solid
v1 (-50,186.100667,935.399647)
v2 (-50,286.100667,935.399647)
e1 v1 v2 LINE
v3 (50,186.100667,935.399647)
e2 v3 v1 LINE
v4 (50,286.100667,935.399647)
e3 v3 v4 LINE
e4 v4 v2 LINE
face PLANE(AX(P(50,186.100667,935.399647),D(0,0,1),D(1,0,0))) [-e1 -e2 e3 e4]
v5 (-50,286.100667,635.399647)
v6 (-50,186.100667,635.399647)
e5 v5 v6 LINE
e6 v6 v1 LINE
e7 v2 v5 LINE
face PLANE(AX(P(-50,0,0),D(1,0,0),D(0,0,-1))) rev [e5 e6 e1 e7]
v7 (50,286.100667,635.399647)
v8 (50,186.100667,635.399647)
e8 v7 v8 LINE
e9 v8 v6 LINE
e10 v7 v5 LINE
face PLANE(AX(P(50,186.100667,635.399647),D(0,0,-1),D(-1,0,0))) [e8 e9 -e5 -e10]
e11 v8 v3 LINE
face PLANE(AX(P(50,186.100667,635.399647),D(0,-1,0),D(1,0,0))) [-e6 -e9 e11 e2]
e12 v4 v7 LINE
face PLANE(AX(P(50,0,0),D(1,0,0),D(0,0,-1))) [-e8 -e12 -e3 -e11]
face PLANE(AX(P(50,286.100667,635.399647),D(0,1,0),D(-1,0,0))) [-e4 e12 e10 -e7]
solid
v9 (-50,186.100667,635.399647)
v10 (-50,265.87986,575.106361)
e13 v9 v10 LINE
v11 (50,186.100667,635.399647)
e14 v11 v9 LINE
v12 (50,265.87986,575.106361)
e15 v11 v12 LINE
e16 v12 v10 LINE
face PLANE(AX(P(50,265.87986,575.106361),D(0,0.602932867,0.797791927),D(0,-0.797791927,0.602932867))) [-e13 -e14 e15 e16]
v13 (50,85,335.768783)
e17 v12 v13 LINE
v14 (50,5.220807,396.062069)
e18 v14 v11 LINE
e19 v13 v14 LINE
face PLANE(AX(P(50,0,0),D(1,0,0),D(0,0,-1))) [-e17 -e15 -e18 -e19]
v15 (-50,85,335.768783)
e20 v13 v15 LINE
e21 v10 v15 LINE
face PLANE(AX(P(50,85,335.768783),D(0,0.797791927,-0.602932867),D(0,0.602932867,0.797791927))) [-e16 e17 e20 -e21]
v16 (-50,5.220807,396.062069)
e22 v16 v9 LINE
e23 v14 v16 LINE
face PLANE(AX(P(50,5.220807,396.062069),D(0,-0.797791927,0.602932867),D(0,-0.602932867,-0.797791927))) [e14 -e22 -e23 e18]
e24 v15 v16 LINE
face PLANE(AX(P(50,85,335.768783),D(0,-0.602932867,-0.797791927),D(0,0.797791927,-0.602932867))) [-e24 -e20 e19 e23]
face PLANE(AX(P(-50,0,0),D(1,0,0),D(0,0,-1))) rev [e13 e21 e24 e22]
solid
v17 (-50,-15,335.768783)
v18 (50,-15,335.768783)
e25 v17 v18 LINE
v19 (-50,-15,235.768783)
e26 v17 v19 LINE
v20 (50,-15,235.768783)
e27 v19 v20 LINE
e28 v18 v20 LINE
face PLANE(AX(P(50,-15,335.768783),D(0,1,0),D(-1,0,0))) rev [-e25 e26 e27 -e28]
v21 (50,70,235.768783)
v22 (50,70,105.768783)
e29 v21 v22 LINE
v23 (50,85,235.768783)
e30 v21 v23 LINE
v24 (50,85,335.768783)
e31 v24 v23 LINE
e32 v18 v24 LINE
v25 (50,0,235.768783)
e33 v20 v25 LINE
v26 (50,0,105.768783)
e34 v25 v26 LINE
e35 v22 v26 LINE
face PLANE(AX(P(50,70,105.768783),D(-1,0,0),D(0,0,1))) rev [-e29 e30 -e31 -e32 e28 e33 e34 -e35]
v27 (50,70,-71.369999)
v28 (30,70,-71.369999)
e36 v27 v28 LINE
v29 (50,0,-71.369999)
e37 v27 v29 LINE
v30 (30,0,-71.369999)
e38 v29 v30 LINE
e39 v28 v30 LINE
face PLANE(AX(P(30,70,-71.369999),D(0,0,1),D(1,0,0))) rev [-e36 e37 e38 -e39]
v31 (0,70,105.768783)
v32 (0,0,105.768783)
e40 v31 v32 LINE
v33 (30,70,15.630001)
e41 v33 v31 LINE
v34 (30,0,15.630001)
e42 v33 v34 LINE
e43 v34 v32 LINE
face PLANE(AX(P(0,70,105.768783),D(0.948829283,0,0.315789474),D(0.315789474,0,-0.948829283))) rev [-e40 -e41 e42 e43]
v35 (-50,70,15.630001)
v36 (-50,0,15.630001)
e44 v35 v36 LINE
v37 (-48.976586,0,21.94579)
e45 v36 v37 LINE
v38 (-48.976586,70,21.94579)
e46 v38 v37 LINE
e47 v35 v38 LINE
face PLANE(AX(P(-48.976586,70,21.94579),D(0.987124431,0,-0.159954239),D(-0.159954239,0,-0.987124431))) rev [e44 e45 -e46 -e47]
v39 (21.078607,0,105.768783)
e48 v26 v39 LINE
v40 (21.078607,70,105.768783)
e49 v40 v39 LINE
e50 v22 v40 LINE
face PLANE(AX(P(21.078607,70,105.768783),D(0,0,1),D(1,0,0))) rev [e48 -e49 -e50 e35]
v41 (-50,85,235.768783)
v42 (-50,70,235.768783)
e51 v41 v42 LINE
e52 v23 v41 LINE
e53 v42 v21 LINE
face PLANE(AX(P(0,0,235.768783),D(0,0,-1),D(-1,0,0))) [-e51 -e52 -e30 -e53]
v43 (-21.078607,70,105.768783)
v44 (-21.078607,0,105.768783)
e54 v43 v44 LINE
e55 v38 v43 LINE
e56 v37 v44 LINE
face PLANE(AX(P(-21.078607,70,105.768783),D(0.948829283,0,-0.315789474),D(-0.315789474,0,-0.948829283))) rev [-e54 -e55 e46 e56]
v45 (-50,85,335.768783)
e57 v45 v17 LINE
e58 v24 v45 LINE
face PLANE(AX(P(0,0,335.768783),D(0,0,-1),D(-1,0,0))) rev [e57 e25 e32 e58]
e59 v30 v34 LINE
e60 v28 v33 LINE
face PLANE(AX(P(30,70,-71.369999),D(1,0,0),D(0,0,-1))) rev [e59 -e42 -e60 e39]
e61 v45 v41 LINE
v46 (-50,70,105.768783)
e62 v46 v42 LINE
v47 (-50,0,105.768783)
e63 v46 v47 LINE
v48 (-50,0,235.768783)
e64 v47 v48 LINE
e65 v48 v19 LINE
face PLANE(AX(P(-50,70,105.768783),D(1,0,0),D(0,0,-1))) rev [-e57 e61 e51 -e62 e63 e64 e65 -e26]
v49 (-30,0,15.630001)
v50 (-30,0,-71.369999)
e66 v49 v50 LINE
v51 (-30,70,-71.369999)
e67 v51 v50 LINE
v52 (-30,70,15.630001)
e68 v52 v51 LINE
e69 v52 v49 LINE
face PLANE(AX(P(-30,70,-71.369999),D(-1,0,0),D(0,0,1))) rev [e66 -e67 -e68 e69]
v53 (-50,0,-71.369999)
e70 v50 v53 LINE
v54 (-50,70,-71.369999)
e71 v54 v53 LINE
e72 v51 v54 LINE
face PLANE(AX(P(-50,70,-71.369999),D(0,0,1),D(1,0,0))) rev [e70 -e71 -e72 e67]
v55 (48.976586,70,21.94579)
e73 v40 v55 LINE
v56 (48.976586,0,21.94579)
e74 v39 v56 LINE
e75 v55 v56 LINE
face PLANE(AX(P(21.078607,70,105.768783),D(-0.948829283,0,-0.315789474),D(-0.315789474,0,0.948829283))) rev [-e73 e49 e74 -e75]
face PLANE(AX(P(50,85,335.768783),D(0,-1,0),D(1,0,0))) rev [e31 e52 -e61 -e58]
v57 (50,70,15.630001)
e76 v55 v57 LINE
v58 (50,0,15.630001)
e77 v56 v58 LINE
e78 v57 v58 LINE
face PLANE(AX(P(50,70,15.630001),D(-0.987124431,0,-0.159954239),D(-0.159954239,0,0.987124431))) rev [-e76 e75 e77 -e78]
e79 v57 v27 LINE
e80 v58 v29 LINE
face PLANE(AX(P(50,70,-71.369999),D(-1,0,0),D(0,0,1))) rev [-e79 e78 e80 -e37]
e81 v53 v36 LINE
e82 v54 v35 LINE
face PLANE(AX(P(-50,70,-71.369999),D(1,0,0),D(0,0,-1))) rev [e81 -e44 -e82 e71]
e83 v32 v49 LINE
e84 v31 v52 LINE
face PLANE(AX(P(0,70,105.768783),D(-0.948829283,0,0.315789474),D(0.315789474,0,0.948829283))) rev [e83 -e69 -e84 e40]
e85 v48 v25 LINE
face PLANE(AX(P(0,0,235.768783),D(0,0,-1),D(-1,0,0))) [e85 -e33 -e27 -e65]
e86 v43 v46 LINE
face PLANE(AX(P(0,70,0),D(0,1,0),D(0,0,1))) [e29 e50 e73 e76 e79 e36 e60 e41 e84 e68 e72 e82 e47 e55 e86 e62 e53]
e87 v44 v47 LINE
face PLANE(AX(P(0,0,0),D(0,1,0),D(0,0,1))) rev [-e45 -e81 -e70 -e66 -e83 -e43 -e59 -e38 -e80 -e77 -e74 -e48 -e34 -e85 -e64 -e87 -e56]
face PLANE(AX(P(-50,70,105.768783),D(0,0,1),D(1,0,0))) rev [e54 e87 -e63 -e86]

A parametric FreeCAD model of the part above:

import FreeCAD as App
import Part
import Sketcher

V = App.Vector
Q = App.Units.Quantity


def add_polygon(sketch, points):
    """Adds a closed chain of lines whose ends are joined by coincident constraints."""
    first, n = sketch.GeometryCount, len(points)
    for a, b in zip(points, points[1:] + points[:1]):
        sketch.addGeometry(Part.LineSegment(App.Vector(*a, 0), App.Vector(*b, 0)), False)
    for i in range(n):
        sketch.addConstraint(Sketcher.Constraint("Coincident", first + i, 2, first + (i + 1) % n, 1))

doc = App.newDocument("Part")
body = doc.addObject("PartDesign::Body", "Body")

# Sketch on XZ plane
sketch1 = doc.addObject("Sketcher::SketchObject", "Sketch")
body.addObject(sketch1)
sketch1.AttachmentSupport = (doc.XZ_Plane, [""])
sketch1.MapMode = "FlatFace"
add_polygon(sketch1, [(0, 105.768783), (-30, 15.630001), (-30, -71.369999), (-50, -71.369999), (-50, 15.630001), (-48.976586, 21.94579), (-21.078607, 105.768783), (-50, 105.768783), (-50, 235.768783), (50, 235.768783), (50, 105.768783), (21.078607, 105.768783), (48.976586, 21.94579), (50, 15.630001), (50, -71.369999), (30, -71.369999), (30, 15.630001)])  # lines 0-16
sketch1.addConstraint(Sketcher.Constraint("Vertical", 1))
sketch1.addConstraint(Sketcher.Constraint("Horizontal", 2))
sketch1.addConstraint(Sketcher.Constraint("Vertical", 3))
sketch1.addConstraint(Sketcher.Constraint("Horizontal", 6))
sketch1.addConstraint(Sketcher.Constraint("Vertical", 7))
sketch1.addConstraint(Sketcher.Constraint("Horizontal", 8))
sketch1.addConstraint(Sketcher.Constraint("Vertical", 9))
sketch1.addConstraint(Sketcher.Constraint("Horizontal", 10))
sketch1.addConstraint(Sketcher.Constraint("Vertical", 13))
sketch1.addConstraint(Sketcher.Constraint("Horizontal", 14))
sketch1.addConstraint(Sketcher.Constraint("Vertical", 15))
sketch1.addConstraint(Sketcher.Constraint("Symmetric", 6, 2, 9, 2, -2))
sketch1.addConstraint(Sketcher.Constraint("Symmetric", 4, 2, 11, 2, -2))
sketch1.addConstraint(Sketcher.Constraint("Symmetric", 3, 2, 12, 2, -2))
sketch1.addConstraint(Sketcher.Constraint("Symmetric", 1, 2, 14, 2, -2))
sketch1.addConstraint(Sketcher.Constraint("PointOnObject", 16, 2, -2))
sketch1.addConstraint(Sketcher.Constraint("Parallel", 0, 5))
sketch1.addConstraint(Sketcher.Constraint("Parallel", 11, 16))
sketch1.addConstraint(Sketcher.Constraint("Horizontal", 0, 2, 3, 2))
sketch1.addConstraint(Sketcher.Constraint("Horizontal", 12, 2, 15, 2))
sketch1.addConstraint(Sketcher.Constraint("Horizontal", 10, 2, 16, 2))
sketch1.addConstraint(Sketcher.Constraint("Vertical", 3, 2, 6, 2))
sketch1.addConstraint(Sketcher.Constraint("DistanceX", 2, 2, 2, 1, Q("20 mm")))
sketch1.addConstraint(Sketcher.Constraint("DistanceX", 8, 1, 8, 2, Q("100 mm")))
sketch1.addConstraint(Sketcher.Constraint("DistanceY", 1, 2, 1, 1, Q("87 mm")))
sketch1.addConstraint(Sketcher.Constraint("DistanceY", 7, 1, 7, 2, Q("130 mm")))
sketch1.addConstraint(Sketcher.Constraint("Distance", 0, Q("95 mm")))
sketch1.addConstraint(Sketcher.Constraint("DistanceY", -1, 1, 0, 2, Q("15.630001 mm")))
sketch1.addConstraint(Sketcher.Constraint("Distance", 4, Q("6.39817 mm")))
sketch1.addConstraint(Sketcher.Constraint("DistanceX", 6, 2, 6, 1, Q("28.921393 mm")))
pad1 = doc.addObject("PartDesign::Pad", "Pad")
body.addObject(pad1)
pad1.Profile = sketch1
pad1.Length = 70
pad1.Reversed = True

# Sketch on XY plane
sketch2 = doc.addObject("Sketcher::SketchObject", "Sketch001")
body.addObject(sketch2)
sketch2.AttachmentSupport = (doc.XY_Plane, [""])
sketch2.MapMode = "FlatFace"
sketch2.AttachmentOffset = App.Placement(V(0, 0, 235.768783), App.Rotation())
add_polygon(sketch2, [(-50, 85), (-50, -15), (50, -15), (50, 85)])  # lines 0-3
sketch2.addConstraint(Sketcher.Constraint("Vertical", 0))
sketch2.addConstraint(Sketcher.Constraint("Horizontal", 1))
sketch2.addConstraint(Sketcher.Constraint("Vertical", 2))
sketch2.addConstraint(Sketcher.Constraint("Horizontal", 3))
sketch2.addConstraint(Sketcher.Constraint("Equal", 3, 0))
sketch2.addConstraint(Sketcher.Constraint("DistanceX", 1, 1, 1, 2, Q("100 mm")))
sketch2.addConstraint(Sketcher.Constraint("DistanceX", 0, 2, -1, 1, Q("50 mm")))
sketch2.addConstraint(Sketcher.Constraint("DistanceY", 0, 2, -1, 1, Q("15 mm")))
pad2 = doc.addObject("PartDesign::Pad", "Pad001")
body.addObject(pad2)
pad2.Profile = sketch2
pad2.Length = 100
body2 = doc.addObject("PartDesign::Body", "Body001")

# Sketch on YZ plane
sketch3 = doc.addObject("Sketcher::SketchObject", "Sketch002")
body2.addObject(sketch3)
sketch3.AttachmentSupport = (doc.getObject("YZ_Plane001"), [""])
sketch3.MapMode = "FlatFace"
sketch3.AttachmentOffset = App.Placement(V(0, 0, -50), App.Rotation())
add_polygon(sketch3, [(85, 335.768783), (5.220807, 396.062069), (186.100667, 635.399647), (265.87986, 575.106361)])  # lines 0-3
sketch3.addConstraint(Sketcher.Constraint("Perpendicular", 0, 1))
sketch3.addConstraint(Sketcher.Constraint("Perpendicular", 1, 2))
sketch3.addConstraint(Sketcher.Constraint("Perpendicular", 2, 3))
sketch3.addConstraint(Sketcher.Constraint("Distance", 0, Q("100 mm")))
sketch3.addConstraint(Sketcher.Constraint("Distance", 1, Q("300 mm")))
sketch3.addConstraint(Sketcher.Constraint("DistanceX", -1, 1, 3, 2, Q("85 mm")))
sketch3.addConstraint(Sketcher.Constraint("DistanceY", -1, 1, 0, 2, Q("396.062069 mm")))
sketch3.addConstraint(Sketcher.Constraint("DistanceX", -1, 1, 2, 2, Q("265.87986 mm")))
pad3 = doc.addObject("PartDesign::Pad", "Pad002")
body2.addObject(pad3)
pad3.Profile = sketch3
pad3.Length = 100
body3 = doc.addObject("PartDesign::Body", "Body002")

# Sketch on YZ plane
sketch4 = doc.addObject("Sketcher::SketchObject", "Sketch003")
body3.addObject(sketch4)
sketch4.AttachmentSupport = (doc.getObject("YZ_Plane002"), [""])
sketch4.MapMode = "FlatFace"
sketch4.AttachmentOffset = App.Placement(V(0, 0, -50), App.Rotation())
add_polygon(sketch4, [(286.100667, 635.399647), (186.100667, 635.399647), (186.100667, 935.399647), (286.100667, 935.399647)])  # lines 0-3
sketch4.addConstraint(Sketcher.Constraint("Horizontal", 0))
sketch4.addConstraint(Sketcher.Constraint("Vertical", 1))
sketch4.addConstraint(Sketcher.Constraint("Horizontal", 2))
sketch4.addConstraint(Sketcher.Constraint("Vertical", 3))
sketch4.addConstraint(Sketcher.Constraint("DistanceX", 0, 2, 0, 1, Q("100 mm")))
sketch4.addConstraint(Sketcher.Constraint("DistanceY", 1, 1, 1, 2, Q("300 mm")))
sketch4.addConstraint(Sketcher.Constraint("DistanceX", -1, 1, 0, 2, Q("186.100667 mm")))
sketch4.addConstraint(Sketcher.Constraint("DistanceY", -1, 1, 0, 2, Q("635.399647 mm")))
pad4 = doc.addObject("PartDesign::Pad", "Pad003")
body3.addObject(pad4)
pad4.Profile = sketch4
pad4.Length = 100

doc.recompute()
